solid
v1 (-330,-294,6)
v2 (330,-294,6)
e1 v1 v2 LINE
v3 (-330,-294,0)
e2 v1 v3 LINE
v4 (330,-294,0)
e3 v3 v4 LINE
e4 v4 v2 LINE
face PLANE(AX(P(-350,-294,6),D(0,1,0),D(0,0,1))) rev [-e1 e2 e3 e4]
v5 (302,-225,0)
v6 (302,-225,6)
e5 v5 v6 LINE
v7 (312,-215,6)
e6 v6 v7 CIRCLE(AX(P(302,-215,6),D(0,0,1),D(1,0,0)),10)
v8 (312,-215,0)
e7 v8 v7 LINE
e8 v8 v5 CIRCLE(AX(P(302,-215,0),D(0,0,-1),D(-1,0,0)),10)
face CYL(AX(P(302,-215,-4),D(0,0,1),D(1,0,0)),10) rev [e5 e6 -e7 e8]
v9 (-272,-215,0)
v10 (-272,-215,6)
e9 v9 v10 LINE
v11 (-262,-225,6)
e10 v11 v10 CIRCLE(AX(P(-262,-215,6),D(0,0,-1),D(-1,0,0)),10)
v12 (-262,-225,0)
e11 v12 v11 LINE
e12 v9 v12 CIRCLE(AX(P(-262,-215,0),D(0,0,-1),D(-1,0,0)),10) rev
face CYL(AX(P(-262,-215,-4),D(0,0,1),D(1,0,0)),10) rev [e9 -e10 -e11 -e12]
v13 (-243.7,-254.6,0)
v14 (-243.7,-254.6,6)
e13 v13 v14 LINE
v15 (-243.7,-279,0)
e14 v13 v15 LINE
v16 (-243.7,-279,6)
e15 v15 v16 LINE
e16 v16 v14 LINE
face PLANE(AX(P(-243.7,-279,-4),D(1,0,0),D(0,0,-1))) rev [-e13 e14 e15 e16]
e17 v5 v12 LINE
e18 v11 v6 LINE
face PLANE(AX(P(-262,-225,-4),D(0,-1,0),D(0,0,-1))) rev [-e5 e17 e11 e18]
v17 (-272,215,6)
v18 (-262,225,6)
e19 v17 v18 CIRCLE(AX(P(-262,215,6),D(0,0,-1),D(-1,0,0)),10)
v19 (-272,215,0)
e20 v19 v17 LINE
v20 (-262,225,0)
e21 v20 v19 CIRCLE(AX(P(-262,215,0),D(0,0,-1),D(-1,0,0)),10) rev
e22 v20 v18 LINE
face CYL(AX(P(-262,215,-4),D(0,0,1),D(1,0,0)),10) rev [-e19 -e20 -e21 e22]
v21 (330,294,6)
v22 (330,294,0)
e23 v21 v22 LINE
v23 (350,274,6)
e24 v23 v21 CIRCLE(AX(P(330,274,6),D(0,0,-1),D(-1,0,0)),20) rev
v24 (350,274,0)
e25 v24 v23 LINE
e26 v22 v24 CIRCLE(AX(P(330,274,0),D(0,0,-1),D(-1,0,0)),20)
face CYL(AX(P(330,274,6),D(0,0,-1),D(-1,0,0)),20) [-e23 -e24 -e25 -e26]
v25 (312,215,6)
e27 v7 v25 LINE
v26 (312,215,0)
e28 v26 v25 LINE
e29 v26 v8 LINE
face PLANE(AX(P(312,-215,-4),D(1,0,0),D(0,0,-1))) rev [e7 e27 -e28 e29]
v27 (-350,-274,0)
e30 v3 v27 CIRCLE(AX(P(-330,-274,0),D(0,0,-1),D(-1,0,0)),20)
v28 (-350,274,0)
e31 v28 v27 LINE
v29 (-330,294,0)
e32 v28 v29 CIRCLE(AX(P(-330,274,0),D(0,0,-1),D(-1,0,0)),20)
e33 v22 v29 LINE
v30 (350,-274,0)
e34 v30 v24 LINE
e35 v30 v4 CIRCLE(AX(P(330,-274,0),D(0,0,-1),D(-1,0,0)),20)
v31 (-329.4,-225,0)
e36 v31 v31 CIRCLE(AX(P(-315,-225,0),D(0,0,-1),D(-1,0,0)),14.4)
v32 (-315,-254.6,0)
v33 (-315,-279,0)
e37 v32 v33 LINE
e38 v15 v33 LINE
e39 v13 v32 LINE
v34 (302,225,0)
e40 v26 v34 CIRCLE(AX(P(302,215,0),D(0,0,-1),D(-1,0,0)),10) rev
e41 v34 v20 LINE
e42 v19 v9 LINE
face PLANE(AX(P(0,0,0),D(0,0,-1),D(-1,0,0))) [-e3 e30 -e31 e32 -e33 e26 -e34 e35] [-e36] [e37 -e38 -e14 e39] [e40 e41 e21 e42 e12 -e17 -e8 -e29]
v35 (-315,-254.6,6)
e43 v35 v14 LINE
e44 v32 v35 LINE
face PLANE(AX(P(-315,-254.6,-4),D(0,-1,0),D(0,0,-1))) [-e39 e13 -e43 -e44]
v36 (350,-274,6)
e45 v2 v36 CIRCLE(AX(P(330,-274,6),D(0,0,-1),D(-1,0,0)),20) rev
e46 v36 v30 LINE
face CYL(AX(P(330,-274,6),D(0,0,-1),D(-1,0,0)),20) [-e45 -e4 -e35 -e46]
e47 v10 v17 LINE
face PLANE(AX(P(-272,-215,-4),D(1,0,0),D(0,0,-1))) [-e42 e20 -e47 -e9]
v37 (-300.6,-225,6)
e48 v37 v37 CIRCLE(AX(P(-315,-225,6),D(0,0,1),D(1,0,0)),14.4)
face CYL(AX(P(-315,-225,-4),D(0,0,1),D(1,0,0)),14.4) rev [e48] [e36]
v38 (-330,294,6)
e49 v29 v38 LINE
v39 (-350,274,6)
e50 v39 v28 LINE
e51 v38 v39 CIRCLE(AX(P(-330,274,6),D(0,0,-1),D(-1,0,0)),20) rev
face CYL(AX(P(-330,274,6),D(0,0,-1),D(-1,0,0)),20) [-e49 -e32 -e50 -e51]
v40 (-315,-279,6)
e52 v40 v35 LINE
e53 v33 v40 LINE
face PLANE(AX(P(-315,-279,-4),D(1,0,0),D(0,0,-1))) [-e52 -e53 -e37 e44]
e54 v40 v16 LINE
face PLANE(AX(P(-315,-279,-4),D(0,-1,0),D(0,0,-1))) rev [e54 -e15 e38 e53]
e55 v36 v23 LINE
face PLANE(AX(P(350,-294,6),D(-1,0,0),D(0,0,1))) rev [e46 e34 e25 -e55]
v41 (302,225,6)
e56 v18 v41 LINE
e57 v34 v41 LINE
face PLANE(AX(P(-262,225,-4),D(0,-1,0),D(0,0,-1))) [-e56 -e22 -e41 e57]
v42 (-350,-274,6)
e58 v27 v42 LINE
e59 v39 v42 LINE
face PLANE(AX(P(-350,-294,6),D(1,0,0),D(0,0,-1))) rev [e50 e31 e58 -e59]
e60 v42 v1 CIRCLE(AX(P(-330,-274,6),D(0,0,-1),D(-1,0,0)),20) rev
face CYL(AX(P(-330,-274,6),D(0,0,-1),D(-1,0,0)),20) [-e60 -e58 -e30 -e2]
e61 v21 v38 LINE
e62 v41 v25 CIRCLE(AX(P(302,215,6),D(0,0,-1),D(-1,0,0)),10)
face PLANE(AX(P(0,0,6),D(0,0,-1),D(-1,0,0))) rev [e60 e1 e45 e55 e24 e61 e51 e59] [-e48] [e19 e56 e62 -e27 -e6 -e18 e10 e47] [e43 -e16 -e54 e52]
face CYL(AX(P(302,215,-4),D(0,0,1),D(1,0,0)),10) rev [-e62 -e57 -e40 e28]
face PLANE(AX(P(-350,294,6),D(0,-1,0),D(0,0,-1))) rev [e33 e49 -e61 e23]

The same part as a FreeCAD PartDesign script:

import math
import FreeCAD as App
import Part
import Sketcher

V = App.Vector


def edges_at(feature, points):
    """Names of the edges that pass closest to the given points."""
    edges = feature.Shape.Edges
    near = lambda p: min(range(len(edges)), key=lambda i: edges[i].distToShape(Part.Vertex(*p))[0])
    return sorted({f"Edge{near(p) + 1}" for p in points})


def add_polygon(sketch, points):
    """Adds a closed chain of lines whose ends are joined by coincident constraints."""
    first, n = sketch.GeometryCount, len(points)
    for a, b in zip(points, points[1:] + points[:1]):
        sketch.addGeometry(Part.LineSegment(App.Vector(*a, 0), App.Vector(*b, 0)), False)
    for i in range(n):
        sketch.addConstraint(Sketcher.Constraint("Coincident", first + i, 2, first + (i + 1) % n, 1))

doc = App.newDocument("Part")
body = doc.addObject("PartDesign::Body", "Body")

# Sketch on XY plane
sketch1 = body.newObject("Sketcher::SketchObject", "Sketch")
sketch1.AttachmentSupport = (doc.getObject("XY_Plane"), [""])
sketch1.MapMode = "FlatFace"
add_polygon(sketch1, [(-350, 294), (-350, -294), (350, -294), (350, 294)])  # lines 0-3
sketch1.addConstraint([
    Sketcher.Constraint("Vertical", 0),
    Sketcher.Constraint("Horizontal", 1),
    Sketcher.Constraint("Vertical", 2),
    Sketcher.Constraint("Horizontal", 3),
    Sketcher.Constraint("Symmetric", 0, 2, 2, 2, -1, 1),
    Sketcher.Constraint("DistanceX", 1, 1, 1, 2, 700.0),
    Sketcher.Constraint("DistanceY", 0, 2, 0, 1, 588.0),
])
pad1 = body.newObject("PartDesign::Pad", "Pad")
pad1.Profile = sketch1
pad1.Length = 6
doc.recompute()

fillet = body.newObject("PartDesign::Fillet", "Fillet")
fillet.Base = (pad1, edges_at(pad1, [
    (350, -294, 3),
    (-350, -294, 3),
    (-350, 294, 3),
    (350, 294, 3),
]))
fillet.Radius = 20

# Sketch on XY plane
sketch2 = body.newObject("Sketcher::SketchObject", "Sketch001")
sketch2.AttachmentSupport = (doc.getObject("XY_Plane"), [""])
sketch2.MapMode = "FlatFace"
sketch2.AttachmentOffset = App.Placement(V(0, 0, 6), App.Rotation())
sketch2.addGeometry(Part.Circle(V(-315, -225, 0), V(0, 0, 1), 14), False)  # 0
add_polygon(sketch2, [(-315, -255), (-315, -279), (-244, -279), (-244, -255)])  # lines 1-4
sketch2.addGeometry(Part.LineSegment(V(-262, -225, 0), V(302, -225, 0)), False)  # 5
sketch2.addGeometry(Part.ArcOfCircle(Part.Circle(V(302, -215, 0), V(0, 0, 1), 10), math.radians(-90), math.radians(0)), False)  # 6
sketch2.addGeometry(Part.LineSegment(V(312, -215, 0), V(312, 215, 0)), False)  # 7
sketch2.addGeometry(Part.ArcOfCircle(Part.Circle(V(302, 215, 0), V(0, 0, 1), 10), math.radians(0), math.radians(90)), False)  # 8
sketch2.addGeometry(Part.LineSegment(V(302, 225, 0), V(-262, 225, 0)), False)  # 9
sketch2.addGeometry(Part.ArcOfCircle(Part.Circle(V(-262, 215, 0), V(0, 0, 1), 10), math.radians(90), math.radians(180)), False)  # 10
sketch2.addGeometry(Part.LineSegment(V(-272, 215, 0), V(-272, -215, 0)), False)  # 11
sketch2.addGeometry(Part.ArcOfCircle(Part.Circle(V(-262, -215, 0), V(0, 0, 1), 10), math.radians(180), math.radians(270)), False)  # 12
sketch2.addConstraint([
    Sketcher.Constraint("Tangent", 5, 2, 6, 1),
    Sketcher.Constraint("Tangent", 6, 2, 7, 1),
    Sketcher.Constraint("Tangent", 7, 2, 8, 1),
    Sketcher.Constraint("Tangent", 8, 2, 9, 1),
    Sketcher.Constraint("Tangent", 9, 2, 10, 1),
    Sketcher.Constraint("Tangent", 10, 2, 11, 1),
    Sketcher.Constraint("Tangent", 11, 2, 12, 1),
    Sketcher.Constraint("Tangent", 12, 2, 5, 1),
    Sketcher.Constraint("Vertical", 1),
    Sketcher.Constraint("Horizontal", 2),
    Sketcher.Constraint("Vertical", 3),
    Sketcher.Constraint("Horizontal", 4),
    Sketcher.Constraint("Horizontal", 5),
    Sketcher.Constraint("Vertical", 7),
    Sketcher.Constraint("Horizontal", 9),
    Sketcher.Constraint("Vertical", 11),
    Sketcher.Constraint("Equal", 6, 8),
    Sketcher.Constraint("Equal", 8, 10),
    Sketcher.Constraint("Equal", 10, 12),
    Sketcher.Constraint("Horizontal", 0, 3, 5, 2),
    Sketcher.Constraint("Vertical", 0, 3, 1, 2),
    Sketcher.Constraint("Radius", 6, 10.0),
    Sketcher.Constraint("Diameter", 0, 28.8),
    Sketcher.Constraint("DistanceX", 5, 1, 5, 2, 564.0),
    Sketcher.Constraint("DistanceY", 7, 1, 7, 2, 430.0),
    Sketcher.Constraint("DistanceX", 2, 1, 2, 2, 71.3),
    Sketcher.Constraint("DistanceY", 1, 2, 1, 1, 24.4),
    Sketcher.Constraint("DistanceX", 0, 3, -1, 1, 315.0),
    Sketcher.Constraint("DistanceY", 0, 3, -1, 1, 225.0),
    Sketcher.Constraint("DistanceX", -1, 1, 6, 3, 302.0),
    Sketcher.Constraint("DistanceY", 1, 2, -1, 1, 279.0),
])
pocket1 = body.newObject("PartDesign::Pocket", "Pocket")
pocket1.Profile = sketch2
pocket1.Length = 10

doc.recompute()
